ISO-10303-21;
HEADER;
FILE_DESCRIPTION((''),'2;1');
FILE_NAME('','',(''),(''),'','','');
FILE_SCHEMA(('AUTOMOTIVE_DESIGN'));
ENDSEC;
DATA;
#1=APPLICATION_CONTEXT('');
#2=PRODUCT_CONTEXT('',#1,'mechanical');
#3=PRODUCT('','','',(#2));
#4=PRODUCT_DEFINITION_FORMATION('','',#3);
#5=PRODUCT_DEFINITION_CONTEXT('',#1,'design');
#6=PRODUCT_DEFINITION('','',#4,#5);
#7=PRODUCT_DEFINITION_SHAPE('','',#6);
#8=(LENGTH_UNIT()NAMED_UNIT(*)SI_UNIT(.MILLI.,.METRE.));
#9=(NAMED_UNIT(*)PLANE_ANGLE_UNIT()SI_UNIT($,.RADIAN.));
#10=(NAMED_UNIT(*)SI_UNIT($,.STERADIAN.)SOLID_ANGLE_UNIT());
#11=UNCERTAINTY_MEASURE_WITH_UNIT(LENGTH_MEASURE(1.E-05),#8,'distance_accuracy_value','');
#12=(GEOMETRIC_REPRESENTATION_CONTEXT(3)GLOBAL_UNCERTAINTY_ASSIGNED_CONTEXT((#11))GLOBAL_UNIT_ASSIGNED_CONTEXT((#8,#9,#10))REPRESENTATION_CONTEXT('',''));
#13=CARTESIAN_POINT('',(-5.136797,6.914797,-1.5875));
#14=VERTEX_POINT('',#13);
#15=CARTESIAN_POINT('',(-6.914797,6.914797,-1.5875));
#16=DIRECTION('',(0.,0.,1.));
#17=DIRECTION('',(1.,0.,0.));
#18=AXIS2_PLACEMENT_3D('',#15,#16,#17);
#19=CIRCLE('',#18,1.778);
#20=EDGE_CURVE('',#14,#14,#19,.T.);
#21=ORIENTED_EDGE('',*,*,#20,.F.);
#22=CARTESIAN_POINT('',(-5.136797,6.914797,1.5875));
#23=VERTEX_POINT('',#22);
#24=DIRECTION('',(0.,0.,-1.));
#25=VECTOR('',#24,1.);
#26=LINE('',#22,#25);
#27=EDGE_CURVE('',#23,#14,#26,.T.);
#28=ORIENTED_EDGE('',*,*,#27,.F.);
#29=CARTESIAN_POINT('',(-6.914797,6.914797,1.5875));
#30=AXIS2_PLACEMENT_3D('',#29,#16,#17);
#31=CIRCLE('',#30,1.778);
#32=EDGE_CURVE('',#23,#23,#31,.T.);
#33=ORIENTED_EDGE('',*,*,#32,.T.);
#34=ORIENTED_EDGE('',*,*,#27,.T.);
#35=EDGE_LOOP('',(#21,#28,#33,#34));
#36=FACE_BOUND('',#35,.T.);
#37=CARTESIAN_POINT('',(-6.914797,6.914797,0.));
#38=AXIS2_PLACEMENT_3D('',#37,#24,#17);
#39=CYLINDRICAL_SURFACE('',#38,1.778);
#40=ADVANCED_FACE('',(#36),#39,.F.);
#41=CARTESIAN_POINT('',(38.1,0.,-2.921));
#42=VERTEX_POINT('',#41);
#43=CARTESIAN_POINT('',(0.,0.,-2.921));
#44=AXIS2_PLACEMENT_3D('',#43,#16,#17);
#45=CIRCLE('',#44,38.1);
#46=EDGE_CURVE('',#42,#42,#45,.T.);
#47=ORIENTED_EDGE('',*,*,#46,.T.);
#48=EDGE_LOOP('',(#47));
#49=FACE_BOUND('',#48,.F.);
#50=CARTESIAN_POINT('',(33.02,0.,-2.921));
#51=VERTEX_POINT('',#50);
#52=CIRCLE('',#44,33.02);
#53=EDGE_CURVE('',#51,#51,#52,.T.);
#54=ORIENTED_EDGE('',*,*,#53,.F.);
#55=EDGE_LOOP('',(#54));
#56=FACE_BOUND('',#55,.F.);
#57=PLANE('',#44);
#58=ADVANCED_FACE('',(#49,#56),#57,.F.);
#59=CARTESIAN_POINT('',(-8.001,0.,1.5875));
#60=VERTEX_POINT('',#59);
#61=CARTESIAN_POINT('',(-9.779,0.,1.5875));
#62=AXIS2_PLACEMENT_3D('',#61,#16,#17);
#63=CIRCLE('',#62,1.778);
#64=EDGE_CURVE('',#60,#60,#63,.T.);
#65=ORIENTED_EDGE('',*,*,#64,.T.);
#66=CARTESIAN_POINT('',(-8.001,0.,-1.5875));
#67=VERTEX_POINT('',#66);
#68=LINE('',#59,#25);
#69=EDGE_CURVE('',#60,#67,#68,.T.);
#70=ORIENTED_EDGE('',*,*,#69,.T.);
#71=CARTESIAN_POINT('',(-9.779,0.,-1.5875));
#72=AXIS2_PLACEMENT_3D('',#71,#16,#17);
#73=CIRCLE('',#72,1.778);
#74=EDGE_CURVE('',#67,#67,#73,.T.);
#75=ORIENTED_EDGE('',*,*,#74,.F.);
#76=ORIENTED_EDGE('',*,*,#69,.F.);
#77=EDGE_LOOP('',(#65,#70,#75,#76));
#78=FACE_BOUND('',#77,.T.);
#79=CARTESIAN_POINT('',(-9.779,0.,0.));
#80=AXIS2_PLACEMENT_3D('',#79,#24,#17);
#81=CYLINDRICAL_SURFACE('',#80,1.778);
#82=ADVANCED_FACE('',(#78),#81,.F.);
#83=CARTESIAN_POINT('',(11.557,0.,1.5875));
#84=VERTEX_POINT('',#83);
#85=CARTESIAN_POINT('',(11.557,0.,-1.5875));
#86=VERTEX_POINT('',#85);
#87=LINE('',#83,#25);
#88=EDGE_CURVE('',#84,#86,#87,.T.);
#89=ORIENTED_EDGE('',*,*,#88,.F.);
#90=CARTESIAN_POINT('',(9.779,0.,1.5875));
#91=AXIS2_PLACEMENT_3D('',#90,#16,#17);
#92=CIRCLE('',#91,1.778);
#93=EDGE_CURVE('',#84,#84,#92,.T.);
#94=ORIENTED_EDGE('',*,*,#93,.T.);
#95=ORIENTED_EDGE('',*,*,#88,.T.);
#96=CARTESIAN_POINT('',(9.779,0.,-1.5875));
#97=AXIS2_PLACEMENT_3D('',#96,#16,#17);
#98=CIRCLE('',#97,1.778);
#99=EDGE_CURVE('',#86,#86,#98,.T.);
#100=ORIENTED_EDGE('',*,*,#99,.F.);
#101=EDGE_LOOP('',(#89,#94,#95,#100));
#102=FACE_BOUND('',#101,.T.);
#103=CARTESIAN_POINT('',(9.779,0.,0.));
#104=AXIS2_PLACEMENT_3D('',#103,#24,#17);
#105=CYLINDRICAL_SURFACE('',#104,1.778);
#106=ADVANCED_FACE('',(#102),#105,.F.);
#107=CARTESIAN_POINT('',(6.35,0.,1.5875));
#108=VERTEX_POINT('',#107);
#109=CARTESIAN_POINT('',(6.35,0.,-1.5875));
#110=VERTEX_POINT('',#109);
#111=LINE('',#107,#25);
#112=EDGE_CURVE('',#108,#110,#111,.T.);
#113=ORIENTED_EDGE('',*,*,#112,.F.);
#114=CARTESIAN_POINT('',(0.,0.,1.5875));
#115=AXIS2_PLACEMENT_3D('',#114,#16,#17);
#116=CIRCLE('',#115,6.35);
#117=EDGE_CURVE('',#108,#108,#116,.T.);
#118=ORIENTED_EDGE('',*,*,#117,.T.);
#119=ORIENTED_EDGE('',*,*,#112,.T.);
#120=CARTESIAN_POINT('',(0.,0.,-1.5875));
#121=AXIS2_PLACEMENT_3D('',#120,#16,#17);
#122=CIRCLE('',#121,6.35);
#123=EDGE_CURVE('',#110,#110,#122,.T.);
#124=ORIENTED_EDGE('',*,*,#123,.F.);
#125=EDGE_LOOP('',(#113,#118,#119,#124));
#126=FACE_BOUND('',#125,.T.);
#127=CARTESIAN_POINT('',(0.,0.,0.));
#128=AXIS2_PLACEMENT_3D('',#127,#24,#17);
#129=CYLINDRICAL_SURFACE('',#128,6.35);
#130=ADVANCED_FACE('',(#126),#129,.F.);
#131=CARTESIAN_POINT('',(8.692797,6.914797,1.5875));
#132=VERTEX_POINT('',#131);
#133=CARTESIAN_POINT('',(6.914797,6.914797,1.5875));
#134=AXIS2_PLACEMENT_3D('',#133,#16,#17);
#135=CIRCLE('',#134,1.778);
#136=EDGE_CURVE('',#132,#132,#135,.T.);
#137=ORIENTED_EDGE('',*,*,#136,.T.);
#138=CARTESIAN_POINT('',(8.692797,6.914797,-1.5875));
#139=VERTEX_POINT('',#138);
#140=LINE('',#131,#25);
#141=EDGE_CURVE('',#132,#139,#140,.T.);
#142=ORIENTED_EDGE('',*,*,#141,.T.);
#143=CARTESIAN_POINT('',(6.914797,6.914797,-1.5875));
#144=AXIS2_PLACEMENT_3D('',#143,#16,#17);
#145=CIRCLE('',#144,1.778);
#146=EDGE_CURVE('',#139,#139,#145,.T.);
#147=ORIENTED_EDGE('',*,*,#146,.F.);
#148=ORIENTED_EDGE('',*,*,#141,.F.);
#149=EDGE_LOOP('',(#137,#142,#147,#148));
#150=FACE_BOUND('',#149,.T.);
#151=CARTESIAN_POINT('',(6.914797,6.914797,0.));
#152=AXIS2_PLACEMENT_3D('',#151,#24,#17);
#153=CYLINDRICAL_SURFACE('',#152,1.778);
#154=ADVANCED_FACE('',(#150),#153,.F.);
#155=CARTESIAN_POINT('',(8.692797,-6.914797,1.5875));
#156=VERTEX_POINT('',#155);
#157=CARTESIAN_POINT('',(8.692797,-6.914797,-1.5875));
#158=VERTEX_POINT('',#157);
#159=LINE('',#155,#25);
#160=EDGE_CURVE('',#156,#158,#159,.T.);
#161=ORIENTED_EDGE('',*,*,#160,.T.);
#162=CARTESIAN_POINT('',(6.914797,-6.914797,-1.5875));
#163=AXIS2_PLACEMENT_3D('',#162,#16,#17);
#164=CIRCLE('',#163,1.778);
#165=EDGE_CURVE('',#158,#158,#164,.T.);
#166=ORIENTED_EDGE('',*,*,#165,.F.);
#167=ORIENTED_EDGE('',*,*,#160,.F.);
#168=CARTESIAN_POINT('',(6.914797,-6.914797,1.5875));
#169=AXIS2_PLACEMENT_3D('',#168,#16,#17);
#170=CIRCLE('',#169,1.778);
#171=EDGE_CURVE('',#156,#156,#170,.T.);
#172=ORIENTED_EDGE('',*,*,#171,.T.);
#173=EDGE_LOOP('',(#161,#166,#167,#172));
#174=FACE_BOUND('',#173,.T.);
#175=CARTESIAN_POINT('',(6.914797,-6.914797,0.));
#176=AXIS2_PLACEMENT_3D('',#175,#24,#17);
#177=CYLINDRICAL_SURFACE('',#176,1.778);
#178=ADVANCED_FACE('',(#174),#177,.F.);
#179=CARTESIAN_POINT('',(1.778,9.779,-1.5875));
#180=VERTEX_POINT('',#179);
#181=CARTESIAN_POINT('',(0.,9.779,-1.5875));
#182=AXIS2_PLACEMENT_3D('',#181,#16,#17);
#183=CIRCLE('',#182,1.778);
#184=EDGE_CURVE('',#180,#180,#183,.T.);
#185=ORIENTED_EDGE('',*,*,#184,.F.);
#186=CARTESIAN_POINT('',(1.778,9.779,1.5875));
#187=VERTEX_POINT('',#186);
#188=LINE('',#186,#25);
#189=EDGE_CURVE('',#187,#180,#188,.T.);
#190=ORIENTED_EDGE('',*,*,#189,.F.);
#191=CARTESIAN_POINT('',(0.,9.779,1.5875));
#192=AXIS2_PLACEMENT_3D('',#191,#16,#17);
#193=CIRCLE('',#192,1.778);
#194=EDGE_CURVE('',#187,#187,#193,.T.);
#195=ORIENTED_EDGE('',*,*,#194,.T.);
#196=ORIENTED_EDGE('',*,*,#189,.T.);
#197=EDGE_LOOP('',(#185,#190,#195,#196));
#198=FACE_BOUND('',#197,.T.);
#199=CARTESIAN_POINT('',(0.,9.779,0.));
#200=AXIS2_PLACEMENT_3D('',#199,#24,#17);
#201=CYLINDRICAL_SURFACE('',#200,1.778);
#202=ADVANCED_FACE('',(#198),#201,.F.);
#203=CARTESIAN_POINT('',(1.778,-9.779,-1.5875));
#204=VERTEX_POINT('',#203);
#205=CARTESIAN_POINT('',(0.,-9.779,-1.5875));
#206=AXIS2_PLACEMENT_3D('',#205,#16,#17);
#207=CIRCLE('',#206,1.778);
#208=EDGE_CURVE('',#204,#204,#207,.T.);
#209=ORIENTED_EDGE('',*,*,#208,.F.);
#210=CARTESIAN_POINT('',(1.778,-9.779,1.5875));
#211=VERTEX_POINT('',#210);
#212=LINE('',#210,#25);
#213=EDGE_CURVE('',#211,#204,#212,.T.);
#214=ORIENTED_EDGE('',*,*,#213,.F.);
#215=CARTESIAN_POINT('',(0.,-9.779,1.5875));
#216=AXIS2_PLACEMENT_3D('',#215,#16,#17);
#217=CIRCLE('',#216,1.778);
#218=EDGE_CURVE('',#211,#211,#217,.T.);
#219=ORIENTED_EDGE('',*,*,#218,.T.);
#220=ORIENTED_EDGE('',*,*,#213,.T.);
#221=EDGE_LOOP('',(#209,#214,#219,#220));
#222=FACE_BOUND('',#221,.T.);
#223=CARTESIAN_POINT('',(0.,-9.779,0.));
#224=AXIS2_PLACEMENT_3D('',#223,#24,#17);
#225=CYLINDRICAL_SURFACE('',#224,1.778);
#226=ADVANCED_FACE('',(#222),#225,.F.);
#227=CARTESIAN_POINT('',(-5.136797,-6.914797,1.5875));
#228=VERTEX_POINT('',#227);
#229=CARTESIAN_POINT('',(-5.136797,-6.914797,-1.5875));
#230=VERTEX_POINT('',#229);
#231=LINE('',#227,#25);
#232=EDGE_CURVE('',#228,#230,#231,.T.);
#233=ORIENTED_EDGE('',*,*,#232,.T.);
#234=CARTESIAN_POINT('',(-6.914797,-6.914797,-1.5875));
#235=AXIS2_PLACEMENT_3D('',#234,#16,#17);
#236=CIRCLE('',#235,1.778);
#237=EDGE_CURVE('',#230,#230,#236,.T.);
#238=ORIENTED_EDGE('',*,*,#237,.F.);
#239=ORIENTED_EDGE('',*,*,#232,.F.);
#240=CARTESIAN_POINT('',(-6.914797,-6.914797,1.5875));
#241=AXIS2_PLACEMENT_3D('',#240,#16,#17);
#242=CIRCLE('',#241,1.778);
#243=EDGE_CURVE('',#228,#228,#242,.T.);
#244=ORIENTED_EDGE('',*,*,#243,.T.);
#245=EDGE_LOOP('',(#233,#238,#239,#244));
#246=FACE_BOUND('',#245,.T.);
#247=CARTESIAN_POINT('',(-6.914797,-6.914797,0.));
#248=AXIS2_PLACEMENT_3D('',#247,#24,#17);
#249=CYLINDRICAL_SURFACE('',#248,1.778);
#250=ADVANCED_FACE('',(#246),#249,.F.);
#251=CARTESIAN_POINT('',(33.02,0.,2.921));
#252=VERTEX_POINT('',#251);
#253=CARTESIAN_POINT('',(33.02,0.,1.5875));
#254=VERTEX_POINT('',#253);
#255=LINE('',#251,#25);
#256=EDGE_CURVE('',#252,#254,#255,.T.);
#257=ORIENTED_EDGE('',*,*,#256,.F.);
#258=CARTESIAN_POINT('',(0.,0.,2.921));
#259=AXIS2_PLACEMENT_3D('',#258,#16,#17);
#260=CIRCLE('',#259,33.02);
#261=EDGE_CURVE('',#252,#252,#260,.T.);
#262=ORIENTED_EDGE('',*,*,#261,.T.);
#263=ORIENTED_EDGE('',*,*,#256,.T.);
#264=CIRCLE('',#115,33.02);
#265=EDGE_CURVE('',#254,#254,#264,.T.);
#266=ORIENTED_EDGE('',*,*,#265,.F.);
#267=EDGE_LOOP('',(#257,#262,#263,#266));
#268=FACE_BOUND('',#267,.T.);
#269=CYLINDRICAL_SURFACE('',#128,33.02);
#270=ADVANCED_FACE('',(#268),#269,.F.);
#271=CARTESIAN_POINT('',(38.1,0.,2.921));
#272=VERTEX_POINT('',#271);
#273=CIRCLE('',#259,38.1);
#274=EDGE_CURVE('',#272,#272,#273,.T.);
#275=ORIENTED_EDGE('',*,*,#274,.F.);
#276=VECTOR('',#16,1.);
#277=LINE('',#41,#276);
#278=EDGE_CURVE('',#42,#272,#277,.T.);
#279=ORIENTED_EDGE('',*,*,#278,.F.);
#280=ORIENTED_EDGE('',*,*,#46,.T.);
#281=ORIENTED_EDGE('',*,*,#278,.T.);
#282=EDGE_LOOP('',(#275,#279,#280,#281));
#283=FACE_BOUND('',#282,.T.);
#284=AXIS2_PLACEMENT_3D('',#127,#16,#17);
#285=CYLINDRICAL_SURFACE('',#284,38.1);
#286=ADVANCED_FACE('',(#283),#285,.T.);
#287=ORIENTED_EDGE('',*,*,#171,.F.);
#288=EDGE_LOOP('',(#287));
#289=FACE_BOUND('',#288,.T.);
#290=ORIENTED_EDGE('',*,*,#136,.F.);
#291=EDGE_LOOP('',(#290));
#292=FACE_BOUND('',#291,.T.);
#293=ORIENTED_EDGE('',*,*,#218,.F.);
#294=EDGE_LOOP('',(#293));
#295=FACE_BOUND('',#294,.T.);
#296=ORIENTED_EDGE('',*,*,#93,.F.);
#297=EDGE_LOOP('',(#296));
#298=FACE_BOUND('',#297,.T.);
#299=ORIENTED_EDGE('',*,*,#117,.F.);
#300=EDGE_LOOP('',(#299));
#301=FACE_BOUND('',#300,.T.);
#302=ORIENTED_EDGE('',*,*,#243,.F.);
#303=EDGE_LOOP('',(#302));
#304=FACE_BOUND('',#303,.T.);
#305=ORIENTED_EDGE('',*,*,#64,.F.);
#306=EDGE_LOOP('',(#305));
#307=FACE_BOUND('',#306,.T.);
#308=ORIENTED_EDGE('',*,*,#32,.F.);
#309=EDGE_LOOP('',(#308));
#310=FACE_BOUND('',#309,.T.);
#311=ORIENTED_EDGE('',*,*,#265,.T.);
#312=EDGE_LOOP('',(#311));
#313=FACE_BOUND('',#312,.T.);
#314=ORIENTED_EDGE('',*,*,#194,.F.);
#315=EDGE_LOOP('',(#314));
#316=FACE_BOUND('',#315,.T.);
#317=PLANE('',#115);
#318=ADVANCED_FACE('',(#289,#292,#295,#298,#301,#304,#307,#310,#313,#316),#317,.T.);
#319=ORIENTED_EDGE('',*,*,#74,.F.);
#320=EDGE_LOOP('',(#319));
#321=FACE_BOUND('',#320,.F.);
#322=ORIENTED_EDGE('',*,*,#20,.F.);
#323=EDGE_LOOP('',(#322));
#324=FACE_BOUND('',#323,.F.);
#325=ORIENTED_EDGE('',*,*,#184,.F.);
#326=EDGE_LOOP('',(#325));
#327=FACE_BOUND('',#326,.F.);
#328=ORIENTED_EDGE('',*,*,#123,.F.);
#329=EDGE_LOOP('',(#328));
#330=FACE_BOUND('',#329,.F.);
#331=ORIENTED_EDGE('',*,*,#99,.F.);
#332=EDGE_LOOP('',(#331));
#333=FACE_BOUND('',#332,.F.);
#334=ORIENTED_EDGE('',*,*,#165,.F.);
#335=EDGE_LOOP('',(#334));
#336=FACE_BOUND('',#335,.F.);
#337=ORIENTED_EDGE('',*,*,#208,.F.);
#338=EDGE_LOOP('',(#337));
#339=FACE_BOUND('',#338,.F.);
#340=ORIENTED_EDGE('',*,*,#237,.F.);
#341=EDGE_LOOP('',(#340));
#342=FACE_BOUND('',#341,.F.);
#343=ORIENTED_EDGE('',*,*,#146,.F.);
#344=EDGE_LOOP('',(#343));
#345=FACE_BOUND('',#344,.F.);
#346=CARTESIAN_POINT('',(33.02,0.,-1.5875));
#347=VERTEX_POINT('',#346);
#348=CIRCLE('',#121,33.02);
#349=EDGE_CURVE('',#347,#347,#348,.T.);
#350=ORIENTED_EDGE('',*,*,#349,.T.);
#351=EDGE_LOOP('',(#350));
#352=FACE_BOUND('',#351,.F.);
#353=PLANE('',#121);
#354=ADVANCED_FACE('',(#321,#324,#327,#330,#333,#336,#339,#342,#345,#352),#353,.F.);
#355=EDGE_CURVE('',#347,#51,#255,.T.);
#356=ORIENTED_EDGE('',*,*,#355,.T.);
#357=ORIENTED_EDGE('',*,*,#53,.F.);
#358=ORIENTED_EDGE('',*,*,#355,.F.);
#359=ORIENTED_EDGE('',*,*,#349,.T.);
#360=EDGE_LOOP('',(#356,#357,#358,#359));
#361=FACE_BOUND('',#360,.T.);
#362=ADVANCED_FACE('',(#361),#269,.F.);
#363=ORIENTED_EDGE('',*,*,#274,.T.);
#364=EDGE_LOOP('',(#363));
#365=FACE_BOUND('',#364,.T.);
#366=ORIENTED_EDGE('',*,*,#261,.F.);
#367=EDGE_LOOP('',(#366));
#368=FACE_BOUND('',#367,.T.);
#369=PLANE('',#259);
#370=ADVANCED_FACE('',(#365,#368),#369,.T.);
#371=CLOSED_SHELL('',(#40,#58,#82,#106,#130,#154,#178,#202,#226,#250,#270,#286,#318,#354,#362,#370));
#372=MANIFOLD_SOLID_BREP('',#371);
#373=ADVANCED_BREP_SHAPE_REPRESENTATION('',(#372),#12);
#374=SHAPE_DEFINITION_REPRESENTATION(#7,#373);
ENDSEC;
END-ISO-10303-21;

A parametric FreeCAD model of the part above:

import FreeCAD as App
import Part
import Sketcher

V = App.Vector
Q = App.Units.Quantity

doc = App.newDocument("Part")
body = doc.addObject("PartDesign::Body", "Body")

# Sketch on XY plane
sketch1 = body.newObject("Sketcher::SketchObject", "Sketch")
sketch1.AttachmentSupport = (doc.getObject("XY_Plane"), [""])
sketch1.MapMode = "FlatFace"
sketch1.addGeometry(Part.Circle(V(0, 0, 0), V(0, 0, 1), 38), False)
sketch1.addGeometry(Part.Circle(V(0, 0, 0), V(0, 0, 1), 33), False)
sketch1.addConstraint(Sketcher.Constraint("Coincident", 0, 3, -1, 1))
sketch1.addConstraint(Sketcher.Constraint("Coincident", 1, 3, -1, 1))
sketch1.addConstraint(Sketcher.Constraint("Diameter", 0, Q("3 in")))
sketch1.addConstraint(Sketcher.Constraint("Diameter", 1, Q("2.6 in")))
pad1 = body.newObject("PartDesign::Pad", "Pad")
pad1.Profile = sketch1
pad1.Length = Q("0.23 in")
pad1.Midplane = True

# Sketch on XY plane
sketch2 = body.newObject("Sketcher::SketchObject", "Sketch001")
sketch2.AttachmentSupport = (doc.getObject("XY_Plane"), [""])
sketch2.MapMode = "FlatFace"
sketch2.addGeometry(Part.Circle(V(0, 0, 0), V(0, 0, 1), 33), False)
sketch2.addGeometry(Part.Circle(V(-6.9, -6.9, 0), V(0, 0, 1), 1.8), False)
sketch2.addGeometry(Part.Circle(V(0, -9.8, 0), V(0, 0, 1), 1.8), False)
sketch2.addGeometry(Part.Circle(V(-9.8, 0, 0), V(0, 0, 1), 1.8), False)
sketch2.addGeometry(Part.Circle(V(6.9, -6.9, 0), V(0, 0, 1), 1.8), False)
sketch2.addGeometry(Part.Circle(V(9.8, 0, 0), V(0, 0, 1), 1.8), False)
sketch2.addGeometry(Part.Circle(V(0, 0, 0), V(0, 0, 1), 6.3), False)
sketch2.addGeometry(Part.Circle(V(-6.9, 6.9, 0), V(0, 0, 1), 1.8), False)
sketch2.addGeometry(Part.Circle(V(0, 9.8, 0), V(0, 0, 1), 1.8), False)
sketch2.addGeometry(Part.Circle(V(6.9, 6.9, 0), V(0, 0, 1), 1.8), False)
sketch2.addConstraint(Sketcher.Constraint("Coincident", 0, 3, -1, 1))
sketch2.addConstraint(Sketcher.Constraint("Coincident", 6, 3, -1, 1))
sketch2.addConstraint(Sketcher.Constraint("Equal", 1, 2))
sketch2.addConstraint(Sketcher.Constraint("Equal", 2, 3))
sketch2.addConstraint(Sketcher.Constraint("Equal", 3, 4))
sketch2.addConstraint(Sketcher.Constraint("Equal", 4, 5))
sketch2.addConstraint(Sketcher.Constraint("Equal", 5, 7))
sketch2.addConstraint(Sketcher.Constraint("Equal", 7, 8))
sketch2.addConstraint(Sketcher.Constraint("Equal", 8, 9))
sketch2.addConstraint(Sketcher.Constraint("Symmetric", 3, 3, 5, 3, -1, 1))
sketch2.addConstraint(Sketcher.Constraint("Symmetric", 4, 3, 7, 3, -1, 1))
sketch2.addConstraint(Sketcher.Constraint("Symmetric", 2, 3, 8, 3, -1, 1))
sketch2.addConstraint(Sketcher.Constraint("Symmetric", 1, 3, 9, 3, -1, 1))
sketch2.addConstraint(Sketcher.Constraint("Symmetric", 1, 3, 4, 3, -2))
sketch2.addConstraint(Sketcher.Constraint("PointOnObject", 2, 3, -2))
sketch2.addConstraint(Sketcher.Constraint("PointOnObject", 3, 3, -1))
sketch2.addConstraint(Sketcher.Constraint("Diameter", 0, Q("2.6 in")))
sketch2.addConstraint(Sketcher.Constraint("Diameter", 6, Q("0.5 in")))
sketch2.addConstraint(Sketcher.Constraint("Diameter", 1, Q("0.14 in")))
sketch2.addConstraint(Sketcher.Constraint("DistanceX", 3, 3, 5, 3, Q("0.77 in")))
sketch2.addConstraint(Sketcher.Constraint("DistanceY", 2, 3, -1, 1, Q("0.385 in")))
sketch2.addConstraint(Sketcher.Constraint("DistanceX", 1, 3, -1, 1, 6.914797))
sketch2.addConstraint(Sketcher.Constraint("DistanceY", 1, 3, -1, 1, 6.914797))
pad2 = body.newObject("PartDesign::Pad", "Pad001")
pad2.Profile = sketch2
pad2.Length = Q("0.125 in")
pad2.Midplane = True

doc.recompute()
